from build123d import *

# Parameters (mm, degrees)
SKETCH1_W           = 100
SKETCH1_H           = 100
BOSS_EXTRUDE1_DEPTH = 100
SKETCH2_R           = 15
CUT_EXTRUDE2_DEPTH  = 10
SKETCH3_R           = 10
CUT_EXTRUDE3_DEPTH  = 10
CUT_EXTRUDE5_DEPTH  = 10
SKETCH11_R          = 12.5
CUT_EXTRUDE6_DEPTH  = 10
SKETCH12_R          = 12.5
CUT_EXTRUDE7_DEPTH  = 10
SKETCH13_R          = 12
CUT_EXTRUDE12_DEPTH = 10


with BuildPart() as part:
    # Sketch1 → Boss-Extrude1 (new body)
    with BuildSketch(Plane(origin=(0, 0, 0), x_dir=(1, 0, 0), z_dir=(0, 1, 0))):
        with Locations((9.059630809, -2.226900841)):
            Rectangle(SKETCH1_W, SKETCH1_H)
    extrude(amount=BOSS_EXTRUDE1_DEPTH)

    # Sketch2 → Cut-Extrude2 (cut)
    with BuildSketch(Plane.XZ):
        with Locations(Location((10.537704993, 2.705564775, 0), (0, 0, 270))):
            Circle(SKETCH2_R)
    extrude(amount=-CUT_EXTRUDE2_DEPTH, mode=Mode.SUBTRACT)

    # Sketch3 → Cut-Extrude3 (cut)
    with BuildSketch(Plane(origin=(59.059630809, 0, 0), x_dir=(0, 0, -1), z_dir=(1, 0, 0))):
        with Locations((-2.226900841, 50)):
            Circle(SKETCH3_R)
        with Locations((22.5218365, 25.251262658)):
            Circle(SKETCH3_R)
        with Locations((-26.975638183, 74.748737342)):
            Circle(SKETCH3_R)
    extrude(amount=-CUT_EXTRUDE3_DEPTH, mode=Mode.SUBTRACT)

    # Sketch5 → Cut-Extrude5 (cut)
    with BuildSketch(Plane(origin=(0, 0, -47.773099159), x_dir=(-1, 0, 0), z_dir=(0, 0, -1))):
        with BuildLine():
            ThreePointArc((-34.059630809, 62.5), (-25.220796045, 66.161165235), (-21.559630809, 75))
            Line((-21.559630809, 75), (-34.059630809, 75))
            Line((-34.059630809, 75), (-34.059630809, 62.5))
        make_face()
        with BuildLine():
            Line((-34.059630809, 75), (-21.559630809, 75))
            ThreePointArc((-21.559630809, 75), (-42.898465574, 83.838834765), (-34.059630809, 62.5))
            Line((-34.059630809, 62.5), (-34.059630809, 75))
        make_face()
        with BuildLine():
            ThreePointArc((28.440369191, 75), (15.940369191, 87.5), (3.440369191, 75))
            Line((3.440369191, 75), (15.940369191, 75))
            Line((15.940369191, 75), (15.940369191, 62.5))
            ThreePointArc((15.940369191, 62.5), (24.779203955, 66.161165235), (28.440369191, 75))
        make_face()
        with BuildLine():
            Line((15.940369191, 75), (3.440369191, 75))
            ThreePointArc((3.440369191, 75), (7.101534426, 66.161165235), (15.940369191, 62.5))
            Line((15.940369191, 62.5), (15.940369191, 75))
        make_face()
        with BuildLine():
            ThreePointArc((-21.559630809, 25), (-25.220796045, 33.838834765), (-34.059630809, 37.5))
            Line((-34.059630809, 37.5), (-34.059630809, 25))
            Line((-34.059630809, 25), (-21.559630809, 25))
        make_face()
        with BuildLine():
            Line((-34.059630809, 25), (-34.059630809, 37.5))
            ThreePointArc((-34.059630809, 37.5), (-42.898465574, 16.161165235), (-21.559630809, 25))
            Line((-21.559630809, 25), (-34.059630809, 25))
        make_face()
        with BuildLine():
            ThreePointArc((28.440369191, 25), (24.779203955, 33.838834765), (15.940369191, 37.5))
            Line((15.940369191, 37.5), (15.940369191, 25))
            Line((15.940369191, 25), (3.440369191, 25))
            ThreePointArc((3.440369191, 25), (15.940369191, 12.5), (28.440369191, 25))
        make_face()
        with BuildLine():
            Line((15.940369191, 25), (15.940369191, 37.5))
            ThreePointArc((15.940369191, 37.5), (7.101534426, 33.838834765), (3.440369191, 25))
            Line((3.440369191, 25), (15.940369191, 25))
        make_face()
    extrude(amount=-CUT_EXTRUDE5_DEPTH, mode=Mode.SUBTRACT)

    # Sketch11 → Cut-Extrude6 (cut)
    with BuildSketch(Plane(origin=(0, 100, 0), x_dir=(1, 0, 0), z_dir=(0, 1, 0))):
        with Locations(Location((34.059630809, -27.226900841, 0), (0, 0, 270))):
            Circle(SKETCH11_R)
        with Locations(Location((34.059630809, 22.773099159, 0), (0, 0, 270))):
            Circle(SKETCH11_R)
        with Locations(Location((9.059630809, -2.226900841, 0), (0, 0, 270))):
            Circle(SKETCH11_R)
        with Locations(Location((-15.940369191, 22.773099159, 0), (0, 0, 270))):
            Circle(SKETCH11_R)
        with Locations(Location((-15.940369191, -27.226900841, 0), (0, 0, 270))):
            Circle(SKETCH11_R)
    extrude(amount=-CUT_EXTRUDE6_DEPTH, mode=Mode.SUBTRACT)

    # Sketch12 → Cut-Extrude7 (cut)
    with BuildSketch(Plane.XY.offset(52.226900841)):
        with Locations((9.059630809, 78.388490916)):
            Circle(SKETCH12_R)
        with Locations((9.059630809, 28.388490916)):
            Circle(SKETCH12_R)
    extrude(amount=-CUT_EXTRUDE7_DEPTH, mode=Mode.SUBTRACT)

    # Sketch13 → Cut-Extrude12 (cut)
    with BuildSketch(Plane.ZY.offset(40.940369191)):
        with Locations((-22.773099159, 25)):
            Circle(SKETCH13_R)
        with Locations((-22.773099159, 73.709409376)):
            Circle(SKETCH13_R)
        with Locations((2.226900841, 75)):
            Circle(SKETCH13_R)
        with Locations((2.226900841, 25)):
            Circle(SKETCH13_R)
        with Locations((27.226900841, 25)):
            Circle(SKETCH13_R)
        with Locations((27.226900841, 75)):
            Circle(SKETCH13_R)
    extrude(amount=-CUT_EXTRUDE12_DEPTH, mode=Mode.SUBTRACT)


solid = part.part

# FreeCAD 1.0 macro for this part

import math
import FreeCAD as App
import Part
import Sketcher

V = App.Vector
Q = App.Units.Quantity

doc = App.newDocument("Part")
body = doc.addObject("PartDesign::Body", "Body")

# Sketch on XZ plane
sketch1 = doc.addObject("Sketcher::SketchObject", "Sketch")
body.addObject(sketch1)
sketch1.AttachmentSupport = (doc.XZ_Plane, [""])
sketch1.MapMode = "FlatFace"
sketch1.addGeometry([
    Part.LineSegment(V(-41, -48, 0), V(-41, 52, 0)),
    Part.LineSegment(V(-41, 52, 0), V(59, 52, 0)),
    Part.LineSegment(V(59, 52, 0), V(59, -48, 0)),
    Part.LineSegment(V(59, -48, 0), V(-41, -48, 0)),
], False)
sketch1.addConstraint([
    Sketcher.Constraint("Coincident", 0, 2, 1, 1),
    Sketcher.Constraint("Coincident", 1, 2, 2, 1),
    Sketcher.Constraint("Coincident", 2, 2, 3, 1),
    Sketcher.Constraint("Coincident", 3, 2, 0, 1),
    Sketcher.Constraint("Vertical", 0),
    Sketcher.Constraint("Horizontal", 1),
    Sketcher.Constraint("Vertical", 2),
    Sketcher.Constraint("Horizontal", 3),
    Sketcher.Constraint("Equal", 3, 0),
    Sketcher.Constraint("DistanceX", 1, 1, 1, 2, Q("100 mm")),
    Sketcher.Constraint("DistanceY", -1, 1, 0, 2, Q("52.226901 mm")),
    Sketcher.Constraint("DistanceX", 0, 2, -1, 1, Q("40.940369 mm")),
])
pad1 = doc.addObject("PartDesign::Pad", "Pad")
body.addObject(pad1)
pad1.Profile = sketch1
pad1.Length = 100
pad1.Reversed = True

# Sketch on XZ plane
sketch2 = doc.addObject("Sketcher::SketchObject", "Sketch001")
body.addObject(sketch2)
sketch2.AttachmentSupport = (doc.XZ_Plane, [""])
sketch2.MapMode = "FlatFace"
sketch2.addGeometry(Part.Circle(V(11, 3, 0), V(0, 0, 1), 15), False)
sketch2.addConstraint([
    Sketcher.Constraint("Diameter", 0, Q("30 mm")),
    Sketcher.Constraint("DistanceX", -1, 1, 0, 3, Q("10.537705 mm")),
    Sketcher.Constraint("DistanceY", -1, 1, 0, 3, Q("2.705565 mm")),
])
pocket1 = doc.addObject("PartDesign::Pocket", "Pocket")
body.addObject(pocket1)
pocket1.Profile = sketch2
pocket1.Length = 10

# Sketch on YZ plane
sketch3 = doc.addObject("Sketcher::SketchObject", "Sketch002")
body.addObject(sketch3)
sketch3.AttachmentSupport = (doc.YZ_Plane, [""])
sketch3.MapMode = "FlatFace"
sketch3.AttachmentOffset = App.Placement(V(0, 0, 59.059631), App.Rotation())
sketch3.addGeometry([
    Part.Circle(V(50, 2, 0), V(0, 0, 1), 10),
    Part.Circle(V(25, -23, 0), V(0, 0, 1), 10),
    Part.Circle(V(75, 27, 0), V(0, 0, 1), 10),
], False)
sketch3.addConstraint([
    Sketcher.Constraint("Equal", 0, 1),
    Sketcher.Constraint("Equal", 1, 2),
    Sketcher.Constraint("Diameter", 0, Q("20 mm")),
    Sketcher.Constraint("DistanceX", -1, 1, 0, 3, Q("50 mm")),
    Sketcher.Constraint("DistanceY", -1, 1, 0, 3, Q("2.226901 mm")),
    Sketcher.Constraint("DistanceY", -1, 1, 2, 3, Q("26.975638 mm")),
    Sketcher.Constraint("DistanceX", -1, 1, 1, 3, Q("25.251263 mm")),
    Sketcher.Constraint("DistanceY", 1, 3, -1, 1, Q("22.521836 mm")),
    Sketcher.Constraint("DistanceX", -1, 1, 2, 3, Q("74.748737 mm")),
])
pocket2 = doc.addObject("PartDesign::Pocket", "Pocket001")
body.addObject(pocket2)
pocket2.Profile = sketch3
pocket2.Length = 10

# Sketch on XY plane
sketch4 = doc.addObject("Sketcher::SketchObject", "Sketch003")
body.addObject(sketch4)
sketch4.AttachmentSupport = (doc.XY_Plane, [""])
sketch4.MapMode = "FlatFace"
sketch4.AttachmentOffset = App.Placement(V(0, 0, -47.773099), App.Rotation())
sketch4.addGeometry([
    Part.ArcOfCircle(Part.Circle(V(34, 75, 0), V(0, 0, 1), 13), math.radians(-180), math.radians(-90)),  # 0
    Part.ArcOfCircle(Part.Circle(V(34, 75, 0), V(0, 0, 1), 12), math.radians(-90), math.radians(180)),  # 1
    Part.ArcOfCircle(Part.Circle(V(-16, 75, 0), V(0, 0, 1), 12), math.radians(0), math.radians(180)),  # 2
    Part.ArcOfCircle(Part.Circle(V(-16, 75, 0), V(0, 0, 1), 12), math.radians(-90), math.radians(0)),  # 3
    Part.ArcOfCircle(Part.Circle(V(-16, 75, 0), V(0, 0, 1), 13), math.radians(-180), math.radians(-90)),  # 4
    Part.ArcOfCircle(Part.Circle(V(34, 25, 0), V(0, 0, 1), 13), math.radians(90), math.radians(180)),  # 5
    Part.ArcOfCircle(Part.Circle(V(34, 25, 0), V(0, 0, 1), 12), math.radians(180), math.radians(450)),  # 6
    Part.ArcOfCircle(Part.Circle(V(-16, 25, 0), V(0, 0, 1), 13), math.radians(90), math.radians(180)),  # 7
    Part.ArcOfCircle(Part.Circle(V(-16, 25, 0), V(0, 0, 1), 12), math.radians(0), math.radians(90)),  # 8
    Part.ArcOfCircle(Part.Circle(V(-16, 25, 0), V(0, 0, 1), 12), math.radians(180), math.radians(360)),  # 9
], False)
sketch4.addConstraint([
    Sketcher.Constraint("Tangent", 0, 1, 1, 2),
    Sketcher.Constraint("Coincident", 1, 1, 0, 2),
    Sketcher.Constraint("Tangent", 2, 1, 3, 2),
    Sketcher.Constraint("Tangent", 3, 1, 4, 2),
    Sketcher.Constraint("Tangent", 4, 1, 2, 2),
    Sketcher.Constraint("Tangent", 5, 1, 6, 2),
    Sketcher.Constraint("Coincident", 6, 1, 5, 2),
    Sketcher.Constraint("Tangent", 7, 1, 8, 2),
    Sketcher.Constraint("Tangent", 8, 1, 9, 2),
    Sketcher.Constraint("Tangent", 9, 1, 7, 2),
    Sketcher.Constraint("Equal", 1, 2),
    Sketcher.Constraint("Equal", 4, 5),
    Sketcher.Constraint("Equal", 6, 7),
    Sketcher.Constraint("Horizontal", 1, 3, 2, 3),
    Sketcher.Constraint("Horizontal", 6, 3, 7, 3),
    Sketcher.Constraint("Horizontal", 4, 3, 0, 1),
    Sketcher.Constraint("Horizontal", 0, 1, 2, 1),
    Sketcher.Constraint("Horizontal", 2, 1, 4, 1),
    Sketcher.Constraint("Horizontal", 9, 3, 6, 1),
    Sketcher.Constraint("Horizontal", 6, 1, 8, 1),
    Sketcher.Constraint("Horizontal", 8, 1, 9, 1),
    Sketcher.Constraint("Vertical", 1, 3, 5, 3),
    Sketcher.Constraint("Vertical", 4, 3, 7, 3),
    Sketcher.Constraint("Vertical", 6, 3, 1, 1),
    Sketcher.Constraint("Vertical", 9, 3, 3, 1),
    Sketcher.Constraint("Vertical", 1, 1, 5, 1),
    Sketcher.Constraint("Vertical", 3, 1, 7, 1),
    Sketcher.Constraint("Radius", 0, Q("12.5 mm")),
    Sketcher.Constraint("DistanceY", -1, 1, 0, 3, Q("75 mm")),
    Sketcher.Constraint("DistanceY", -1, 1, 5, 3, Q("25 mm")),
    Sketcher.Constraint("DistanceX", 2, 3, 1, 3, Q("50 mm")),
    Sketcher.Constraint("DistanceX", -1, 1, 0, 3, Q("34.059631 mm")),
])
pocket3 = doc.addObject("PartDesign::Pocket", "Pocket002")
body.addObject(pocket3)
pocket3.Profile = sketch4
pocket3.Length = 10
pocket3.Reversed = True

# Sketch on XZ plane
sketch5 = doc.addObject("Sketcher::SketchObject", "Sketch004")
body.addObject(sketch5)
sketch5.AttachmentSupport = (doc.XZ_Plane, [""])
sketch5.MapMode = "FlatFace"
sketch5.AttachmentOffset = App.Placement(V(0, 0, -100), App.Rotation())
sketch5.addGeometry([
    Part.Circle(V(34, 27, 0), V(0, 0, 1), 12),  # 0
    Part.Circle(V(34, -23, 0), V(0, 0, 1), 12),  # 1
    Part.Circle(V(9, 2, 0), V(0, 0, 1), 12),  # 2
    Part.Circle(V(-16, -23, 0), V(0, 0, 1), 12),  # 3
    Part.Circle(V(-16, 27, 0), V(0, 0, 1), 12),  # 4
], False)
sketch5.addConstraint([
    Sketcher.Constraint("Equal", 0, 1),
    Sketcher.Constraint("Equal", 1, 2),
    Sketcher.Constraint("Equal", 2, 3),
    Sketcher.Constraint("Equal", 3, 4),
    Sketcher.Constraint("Horizontal", 1, 3, 3, 3),
    Sketcher.Constraint("Horizontal", 0, 3, 4, 3),
    Sketcher.Constraint("Vertical", 0, 3, 1, 3),
    Sketcher.Constraint("Vertical", 3, 3, 4, 3),
    Sketcher.Constraint("Diameter", 0, Q("25 mm")),
    Sketcher.Constraint("DistanceY", 1, 3, 0, 3, Q("50 mm")),
    Sketcher.Constraint("DistanceX", 2, 3, 0, 3, Q("25 mm")),
    Sketcher.Constraint("DistanceY", 2, 3, 0, 3, Q("25 mm")),
    Sketcher.Constraint("DistanceX", 3, 3, 2, 3, Q("25 mm")),
    Sketcher.Constraint("DistanceY", -1, 1, 0, 3, Q("27.226901 mm")),
    Sketcher.Constraint("DistanceX", -1, 1, 0, 3, Q("34.059631 mm")),
])
pocket4 = doc.addObject("PartDesign::Pocket", "Pocket003")
body.addObject(pocket4)
pocket4.Profile = sketch5
pocket4.Length = 10
pocket4.Reversed = True

# Sketch on XY plane
sketch6 = doc.addObject("Sketcher::SketchObject", "Sketch005")
body.addObject(sketch6)
sketch6.AttachmentSupport = (doc.XY_Plane, [""])
sketch6.MapMode = "FlatFace"
sketch6.AttachmentOffset = App.Placement(V(0, 0, 52.226901), App.Rotation())
sketch6.addGeometry([
    Part.Circle(V(9, 78, 0), V(0, 0, 1), 12),
    Part.Circle(V(9, 28, 0), V(0, 0, 1), 12),
], False)
sketch6.addConstraint([
    Sketcher.Constraint("Equal", 0, 1),
    Sketcher.Constraint("Vertical", 0, 3, 1, 3),
    Sketcher.Constraint("Diameter", 0, Q("25 mm")),
    Sketcher.Constraint("DistanceY", 1, 3, 0, 3, Q("50 mm")),
    Sketcher.Constraint("DistanceX", -1, 1, 0, 3, Q("9.059631 mm")),
    Sketcher.Constraint("DistanceY", -1, 1, 0, 3, Q("78.388491 mm")),
])
pocket5 = doc.addObject("PartDesign::Pocket", "Pocket004")
body.addObject(pocket5)
pocket5.Profile = sketch6
pocket5.Length = 10

# Sketch on YZ plane
sketch7 = doc.addObject("Sketcher::SketchObject", "Sketch006")
body.addObject(sketch7)
sketch7.AttachmentSupport = (doc.YZ_Plane, [""])
sketch7.MapMode = "FlatFace"
sketch7.AttachmentOffset = App.Placement(V(0, 0, -40.940369), App.Rotation())
sketch7.addGeometry([
    Part.Circle(V(25, -23, 0), V(0, 0, 1), 12),  # 0
    Part.Circle(V(74, -23, 0), V(0, 0, 1), 12),  # 1
    Part.Circle(V(75, 2, 0), V(0, 0, 1), 12),  # 2
    Part.Circle(V(25, 2, 0), V(0, 0, 1), 12),  # 3
    Part.Circle(V(25, 27, 0), V(0, 0, 1), 12),  # 4
    Part.Circle(V(75, 27, 0), V(0, 0, 1), 12),  # 5
], False)
sketch7.addConstraint([
    Sketcher.Constraint("Equal", 0, 1),
    Sketcher.Constraint("Equal", 1, 2),
    Sketcher.Constraint("Equal", 2, 3),
    Sketcher.Constraint("Equal", 3, 4),
    Sketcher.Constraint("Equal", 4, 5),
    Sketcher.Constraint("Horizontal", 0, 3, 1, 3),
    Sketcher.Constraint("Horizontal", 2, 3, 3, 3),
    Sketcher.Constraint("Horizontal", 4, 3, 5, 3),
    Sketcher.Constraint("Vertical", 0, 3, 3, 3),
    Sketcher.Constraint("Vertical", 3, 3, 4, 3),
    Sketcher.Constraint("Vertical", 2, 3, 5, 3),
    Sketcher.Constraint("Diameter", 0, Q("24 mm")),
    Sketcher.Constraint("DistanceX", -1, 1, 0, 3, Q("25 mm")),
    Sketcher.Constraint("DistanceX", -1, 1, 2, 3, Q("75 mm")),
    Sketcher.Constraint("DistanceY", 1, 3, 2, 3, Q("25 mm")),
    Sketcher.Constraint("DistanceY", 3, 3, 4, 3, Q("25 mm")),
    Sketcher.Constraint("DistanceY", 0, 3, -1, 1, Q("22.773099 mm")),
    Sketcher.Constraint("DistanceX", -1, 1, 1, 3, Q("73.709409 mm")),
])
pocket6 = doc.addObject("PartDesign::Pocket", "Pocket005")
body.addObject(pocket6)
pocket6.Profile = sketch7
pocket6.Length = 10
pocket6.Reversed = True

doc.recompute()
